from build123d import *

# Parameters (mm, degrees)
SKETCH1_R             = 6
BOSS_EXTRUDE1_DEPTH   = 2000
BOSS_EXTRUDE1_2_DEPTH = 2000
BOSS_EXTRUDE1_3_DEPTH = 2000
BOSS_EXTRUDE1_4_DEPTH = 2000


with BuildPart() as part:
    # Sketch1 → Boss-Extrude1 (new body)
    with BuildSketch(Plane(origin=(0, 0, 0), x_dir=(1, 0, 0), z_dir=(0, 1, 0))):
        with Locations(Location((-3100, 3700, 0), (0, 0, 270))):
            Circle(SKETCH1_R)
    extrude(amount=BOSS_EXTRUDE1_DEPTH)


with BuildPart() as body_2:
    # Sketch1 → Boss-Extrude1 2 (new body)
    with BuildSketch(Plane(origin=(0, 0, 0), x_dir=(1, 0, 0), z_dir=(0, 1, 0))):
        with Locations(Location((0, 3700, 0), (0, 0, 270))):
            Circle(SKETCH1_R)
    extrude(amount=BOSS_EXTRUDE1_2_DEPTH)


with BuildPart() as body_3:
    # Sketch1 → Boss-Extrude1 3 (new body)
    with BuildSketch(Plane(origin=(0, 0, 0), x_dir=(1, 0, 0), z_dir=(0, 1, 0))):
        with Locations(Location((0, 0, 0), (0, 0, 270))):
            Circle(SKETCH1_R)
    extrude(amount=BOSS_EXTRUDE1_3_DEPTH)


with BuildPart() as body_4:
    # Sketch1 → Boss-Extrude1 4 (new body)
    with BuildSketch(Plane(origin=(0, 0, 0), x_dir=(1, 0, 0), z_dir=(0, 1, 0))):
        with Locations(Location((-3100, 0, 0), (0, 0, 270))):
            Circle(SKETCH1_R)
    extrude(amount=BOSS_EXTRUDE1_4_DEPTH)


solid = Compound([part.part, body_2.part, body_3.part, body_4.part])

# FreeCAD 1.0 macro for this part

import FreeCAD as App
import Part
import Sketcher

V = App.Vector

doc = App.newDocument("Part")
body = doc.addObject("PartDesign::Body", "Body")

sketch1 = body.newObject("Sketcher::SketchObject", "Sketch")
sketch1.AttachmentSupport = (doc.getObject("XZ_Plane"), [""])
sketch1.MapMode = "FlatFace"
sketch1.addGeometry(Part.Circle(V(-3100, -3700, 0), V(0, 0, 1), 6), False)
sketch1.addConstraint([
    Sketcher.Constraint("Diameter", 0, 12.0),
    Sketcher.Constraint("DistanceX", 0, 3, -1, 1, 3100.0),
    Sketcher.Constraint("DistanceY", 0, 3, -1, 1, 3700.0),
])
pad1 = body.newObject("PartDesign::Pad", "Pad")
pad1.Profile = sketch1
pad1.Length = 2000
pad1.Reversed = True
body2 = doc.addObject("PartDesign::Body", "Body001")

sketch2 = body2.newObject("Sketcher::SketchObject", "Sketch001")
sketch2.AttachmentSupport = (doc.getObject("XZ_Plane001"), [""])
sketch2.MapMode = "FlatFace"
sketch2.addGeometry(Part.Circle(V(0, -3700, 0), V(0, 0, 1), 6), False)
sketch2.addConstraint([
    Sketcher.Constraint("PointOnObject", 0, 3, -2),
    Sketcher.Constraint("Diameter", 0, 12.0),
    Sketcher.Constraint("DistanceY", 0, 3, -1, 1, 3700.0),
])
pad2 = body2.newObject("PartDesign::Pad", "Pad001")
pad2.Profile = sketch2
pad2.Length = 2000
pad2.Reversed = True
body3 = doc.addObject("PartDesign::Body", "Body002")

sketch3 = body3.newObject("Sketcher::SketchObject", "Sketch002")
sketch3.AttachmentSupport = (doc.getObject("XZ_Plane002"), [""])
sketch3.MapMode = "FlatFace"
sketch3.addGeometry(Part.Circle(V(0, 0, 0), V(0, 0, 1), 6), False)
sketch3.addConstraint([
    Sketcher.Constraint("Coincident", 0, 3, -1, 1),
    Sketcher.Constraint("Diameter", 0, 12.0),
])
pad3 = body3.newObject("PartDesign::Pad", "Pad002")
pad3.Profile = sketch3
pad3.Length = 2000
pad3.Reversed = True
body4 = doc.addObject("PartDesign::Body", "Body003")

sketch4 = body4.newObject("Sketcher::SketchObject", "Sketch003")
sketch4.AttachmentSupport = (doc.getObject("XZ_Plane003"), [""])
sketch4.MapMode = "FlatFace"
sketch4.addGeometry(Part.Circle(V(-3100, 0, 0), V(0, 0, 1), 6), False)
sketch4.addConstraint([
    Sketcher.Constraint("PointOnObject", 0, 3, -1),
    Sketcher.Constraint("Diameter", 0, 12.0),
    Sketcher.Constraint("DistanceX", 0, 3, -1, 1, 3100.0),
])
pad4 = body4.newObject("PartDesign::Pad", "Pad003")
pad4.Profile = sketch4
pad4.Length = 2000
pad4.Reversed = True

doc.recompute()
